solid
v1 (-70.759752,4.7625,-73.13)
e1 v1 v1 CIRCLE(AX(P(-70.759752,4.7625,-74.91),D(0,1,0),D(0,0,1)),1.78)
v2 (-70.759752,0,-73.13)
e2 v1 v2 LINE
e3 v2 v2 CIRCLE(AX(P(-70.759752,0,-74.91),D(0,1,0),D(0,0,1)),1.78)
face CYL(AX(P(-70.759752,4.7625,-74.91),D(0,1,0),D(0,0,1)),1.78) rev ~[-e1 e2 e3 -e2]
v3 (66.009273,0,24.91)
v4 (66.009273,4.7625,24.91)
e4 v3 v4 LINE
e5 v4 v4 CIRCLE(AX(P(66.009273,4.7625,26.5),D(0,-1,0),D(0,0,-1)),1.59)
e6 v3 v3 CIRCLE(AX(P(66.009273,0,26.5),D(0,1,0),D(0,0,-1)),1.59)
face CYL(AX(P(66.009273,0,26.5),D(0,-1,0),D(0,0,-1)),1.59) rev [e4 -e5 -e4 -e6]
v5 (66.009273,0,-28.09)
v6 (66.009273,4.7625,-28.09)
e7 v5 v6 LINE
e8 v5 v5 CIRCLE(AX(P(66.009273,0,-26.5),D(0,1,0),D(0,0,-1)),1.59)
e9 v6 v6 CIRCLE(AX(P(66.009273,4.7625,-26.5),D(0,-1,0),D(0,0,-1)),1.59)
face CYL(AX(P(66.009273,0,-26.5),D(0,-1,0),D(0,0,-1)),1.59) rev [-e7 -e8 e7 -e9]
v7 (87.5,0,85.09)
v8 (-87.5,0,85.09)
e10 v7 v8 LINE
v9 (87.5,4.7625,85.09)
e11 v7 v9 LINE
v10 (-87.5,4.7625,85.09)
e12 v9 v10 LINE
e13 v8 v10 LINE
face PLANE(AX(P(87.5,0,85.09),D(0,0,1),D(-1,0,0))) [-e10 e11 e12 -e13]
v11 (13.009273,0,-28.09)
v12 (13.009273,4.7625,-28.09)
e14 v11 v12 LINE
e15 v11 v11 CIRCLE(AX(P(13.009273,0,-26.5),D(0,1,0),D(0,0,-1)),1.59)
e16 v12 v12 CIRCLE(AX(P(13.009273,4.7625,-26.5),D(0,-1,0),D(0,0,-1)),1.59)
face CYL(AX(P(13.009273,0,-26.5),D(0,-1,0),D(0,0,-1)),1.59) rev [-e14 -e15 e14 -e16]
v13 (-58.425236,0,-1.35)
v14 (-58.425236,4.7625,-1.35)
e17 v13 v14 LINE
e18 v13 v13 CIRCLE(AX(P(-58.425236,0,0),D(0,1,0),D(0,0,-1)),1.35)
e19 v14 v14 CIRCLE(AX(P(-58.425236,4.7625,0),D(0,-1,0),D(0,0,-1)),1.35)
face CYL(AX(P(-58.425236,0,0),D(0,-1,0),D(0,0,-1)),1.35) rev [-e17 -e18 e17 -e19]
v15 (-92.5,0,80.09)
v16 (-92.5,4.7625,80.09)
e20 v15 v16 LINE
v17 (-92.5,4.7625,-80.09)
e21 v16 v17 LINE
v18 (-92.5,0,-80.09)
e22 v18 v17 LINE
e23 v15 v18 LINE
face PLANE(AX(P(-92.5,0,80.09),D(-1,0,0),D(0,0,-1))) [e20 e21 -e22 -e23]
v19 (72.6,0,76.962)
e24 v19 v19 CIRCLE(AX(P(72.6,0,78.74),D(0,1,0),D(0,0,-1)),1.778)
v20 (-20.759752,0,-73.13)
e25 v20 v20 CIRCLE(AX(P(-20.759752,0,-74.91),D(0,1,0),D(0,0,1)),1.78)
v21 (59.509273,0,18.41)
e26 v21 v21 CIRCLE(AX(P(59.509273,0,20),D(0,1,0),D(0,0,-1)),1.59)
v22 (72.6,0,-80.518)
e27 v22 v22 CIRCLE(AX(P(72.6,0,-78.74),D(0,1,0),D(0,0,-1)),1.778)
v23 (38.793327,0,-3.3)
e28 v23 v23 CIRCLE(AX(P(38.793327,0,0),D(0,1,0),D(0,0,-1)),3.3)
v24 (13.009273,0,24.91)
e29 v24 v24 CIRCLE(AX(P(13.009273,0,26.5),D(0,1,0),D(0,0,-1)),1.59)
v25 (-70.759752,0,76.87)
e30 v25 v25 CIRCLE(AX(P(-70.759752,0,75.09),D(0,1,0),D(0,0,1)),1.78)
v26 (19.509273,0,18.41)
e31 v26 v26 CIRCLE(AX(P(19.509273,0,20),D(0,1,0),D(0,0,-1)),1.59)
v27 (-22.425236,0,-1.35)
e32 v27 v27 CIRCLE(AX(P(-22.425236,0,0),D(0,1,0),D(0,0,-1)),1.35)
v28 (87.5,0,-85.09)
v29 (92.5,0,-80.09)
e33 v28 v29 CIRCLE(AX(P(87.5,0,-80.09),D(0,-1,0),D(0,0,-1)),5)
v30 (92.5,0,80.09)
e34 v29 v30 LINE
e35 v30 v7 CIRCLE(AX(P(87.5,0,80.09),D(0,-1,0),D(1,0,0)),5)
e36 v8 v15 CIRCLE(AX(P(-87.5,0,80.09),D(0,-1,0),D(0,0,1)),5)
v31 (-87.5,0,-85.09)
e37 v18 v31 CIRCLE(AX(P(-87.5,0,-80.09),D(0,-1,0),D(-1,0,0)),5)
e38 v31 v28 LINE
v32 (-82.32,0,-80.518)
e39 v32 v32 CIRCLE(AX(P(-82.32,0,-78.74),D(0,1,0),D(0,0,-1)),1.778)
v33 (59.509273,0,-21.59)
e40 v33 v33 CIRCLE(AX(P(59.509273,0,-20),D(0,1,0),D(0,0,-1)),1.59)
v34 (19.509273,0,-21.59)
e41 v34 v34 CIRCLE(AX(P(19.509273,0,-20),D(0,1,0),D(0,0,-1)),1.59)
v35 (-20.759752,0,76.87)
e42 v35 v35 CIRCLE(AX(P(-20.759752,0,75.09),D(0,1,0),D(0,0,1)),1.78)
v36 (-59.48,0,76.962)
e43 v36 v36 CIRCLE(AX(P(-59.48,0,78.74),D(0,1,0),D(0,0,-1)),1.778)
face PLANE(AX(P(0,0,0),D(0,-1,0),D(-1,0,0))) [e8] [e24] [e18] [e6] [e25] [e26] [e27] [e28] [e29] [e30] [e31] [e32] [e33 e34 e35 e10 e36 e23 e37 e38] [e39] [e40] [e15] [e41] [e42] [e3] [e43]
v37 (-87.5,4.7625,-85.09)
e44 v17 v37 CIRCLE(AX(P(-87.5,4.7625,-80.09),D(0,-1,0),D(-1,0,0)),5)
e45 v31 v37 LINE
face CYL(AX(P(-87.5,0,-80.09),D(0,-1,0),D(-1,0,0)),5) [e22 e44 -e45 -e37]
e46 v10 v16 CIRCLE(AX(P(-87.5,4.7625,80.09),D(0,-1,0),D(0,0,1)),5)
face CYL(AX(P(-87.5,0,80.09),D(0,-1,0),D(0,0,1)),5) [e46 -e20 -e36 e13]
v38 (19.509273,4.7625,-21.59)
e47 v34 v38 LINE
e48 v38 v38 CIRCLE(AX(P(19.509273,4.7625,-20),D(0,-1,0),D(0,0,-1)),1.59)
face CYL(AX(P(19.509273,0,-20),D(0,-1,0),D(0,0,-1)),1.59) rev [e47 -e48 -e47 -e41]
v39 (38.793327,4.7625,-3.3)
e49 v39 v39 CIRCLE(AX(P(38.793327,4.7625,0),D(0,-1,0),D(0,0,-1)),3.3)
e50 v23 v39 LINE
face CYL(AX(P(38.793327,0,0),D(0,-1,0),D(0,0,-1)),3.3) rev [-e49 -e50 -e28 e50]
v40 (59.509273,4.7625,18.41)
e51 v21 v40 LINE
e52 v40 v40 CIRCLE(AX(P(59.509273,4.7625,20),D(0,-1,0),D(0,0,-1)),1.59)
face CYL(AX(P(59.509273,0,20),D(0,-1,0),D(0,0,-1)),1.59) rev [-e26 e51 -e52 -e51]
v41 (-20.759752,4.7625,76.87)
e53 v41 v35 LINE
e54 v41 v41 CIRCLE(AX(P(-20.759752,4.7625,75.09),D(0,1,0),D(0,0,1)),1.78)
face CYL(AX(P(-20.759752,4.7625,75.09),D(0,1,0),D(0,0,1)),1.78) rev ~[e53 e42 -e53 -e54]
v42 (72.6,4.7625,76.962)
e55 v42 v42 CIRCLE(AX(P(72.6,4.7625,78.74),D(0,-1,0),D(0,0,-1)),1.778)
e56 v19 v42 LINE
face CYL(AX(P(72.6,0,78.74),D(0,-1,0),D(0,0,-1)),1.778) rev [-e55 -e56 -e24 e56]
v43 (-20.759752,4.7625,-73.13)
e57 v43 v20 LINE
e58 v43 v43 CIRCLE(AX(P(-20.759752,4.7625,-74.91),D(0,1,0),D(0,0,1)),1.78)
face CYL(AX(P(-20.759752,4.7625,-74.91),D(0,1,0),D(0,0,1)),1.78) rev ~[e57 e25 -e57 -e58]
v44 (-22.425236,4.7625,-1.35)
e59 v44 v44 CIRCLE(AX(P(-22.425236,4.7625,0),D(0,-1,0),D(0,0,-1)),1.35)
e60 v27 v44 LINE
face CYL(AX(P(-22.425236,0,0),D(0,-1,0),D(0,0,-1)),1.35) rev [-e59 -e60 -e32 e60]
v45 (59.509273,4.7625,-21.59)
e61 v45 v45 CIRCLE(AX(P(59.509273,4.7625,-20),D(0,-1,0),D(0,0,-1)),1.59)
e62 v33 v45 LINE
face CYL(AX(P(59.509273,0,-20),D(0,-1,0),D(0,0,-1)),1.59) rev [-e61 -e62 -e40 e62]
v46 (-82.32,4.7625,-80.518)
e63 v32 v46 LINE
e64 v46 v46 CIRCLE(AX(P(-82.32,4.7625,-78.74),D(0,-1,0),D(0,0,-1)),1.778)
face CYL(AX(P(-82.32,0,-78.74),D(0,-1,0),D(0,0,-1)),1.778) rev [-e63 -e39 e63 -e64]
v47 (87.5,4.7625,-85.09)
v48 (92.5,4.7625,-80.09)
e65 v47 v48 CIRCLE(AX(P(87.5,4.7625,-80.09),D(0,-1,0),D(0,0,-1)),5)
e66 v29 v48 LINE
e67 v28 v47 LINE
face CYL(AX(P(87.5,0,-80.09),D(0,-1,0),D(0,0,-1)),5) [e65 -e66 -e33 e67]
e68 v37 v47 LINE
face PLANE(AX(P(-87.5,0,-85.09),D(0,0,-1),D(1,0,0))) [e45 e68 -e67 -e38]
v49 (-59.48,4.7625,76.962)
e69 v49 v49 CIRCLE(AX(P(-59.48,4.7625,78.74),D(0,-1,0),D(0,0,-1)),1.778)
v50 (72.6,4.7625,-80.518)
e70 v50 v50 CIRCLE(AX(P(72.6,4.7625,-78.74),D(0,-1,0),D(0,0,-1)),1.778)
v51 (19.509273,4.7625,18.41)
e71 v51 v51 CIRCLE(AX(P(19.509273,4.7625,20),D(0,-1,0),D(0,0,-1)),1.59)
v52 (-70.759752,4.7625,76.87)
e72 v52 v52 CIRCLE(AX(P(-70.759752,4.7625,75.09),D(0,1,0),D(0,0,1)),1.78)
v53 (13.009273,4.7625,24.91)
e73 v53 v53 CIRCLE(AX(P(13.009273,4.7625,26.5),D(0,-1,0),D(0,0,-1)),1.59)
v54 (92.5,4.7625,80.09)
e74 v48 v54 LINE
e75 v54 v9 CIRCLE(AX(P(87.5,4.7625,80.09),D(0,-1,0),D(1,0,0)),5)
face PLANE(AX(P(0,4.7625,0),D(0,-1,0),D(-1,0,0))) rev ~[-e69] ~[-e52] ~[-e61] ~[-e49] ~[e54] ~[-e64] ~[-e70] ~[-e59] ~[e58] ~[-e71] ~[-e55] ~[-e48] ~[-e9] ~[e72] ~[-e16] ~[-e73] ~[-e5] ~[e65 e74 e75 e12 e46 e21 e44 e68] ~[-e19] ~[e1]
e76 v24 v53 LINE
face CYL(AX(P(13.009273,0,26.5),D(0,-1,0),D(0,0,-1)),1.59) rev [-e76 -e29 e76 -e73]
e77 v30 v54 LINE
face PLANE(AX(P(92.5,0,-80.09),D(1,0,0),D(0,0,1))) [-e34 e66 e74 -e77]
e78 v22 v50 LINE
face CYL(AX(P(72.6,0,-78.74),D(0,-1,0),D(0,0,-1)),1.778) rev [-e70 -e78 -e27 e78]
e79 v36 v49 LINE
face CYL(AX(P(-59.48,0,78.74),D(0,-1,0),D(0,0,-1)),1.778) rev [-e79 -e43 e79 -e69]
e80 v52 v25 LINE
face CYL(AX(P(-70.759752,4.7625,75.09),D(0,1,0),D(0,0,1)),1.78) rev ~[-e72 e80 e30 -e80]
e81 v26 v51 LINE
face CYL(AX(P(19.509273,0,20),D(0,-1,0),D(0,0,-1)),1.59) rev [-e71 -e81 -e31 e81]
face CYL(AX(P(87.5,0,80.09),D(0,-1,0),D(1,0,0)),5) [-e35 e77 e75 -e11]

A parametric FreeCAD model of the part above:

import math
import FreeCAD as App
import Part
import Sketcher
Q = App.Units.Quantity

doc = App.newDocument("Part")
body = doc.addObject("PartDesign::Body", "Body")

# Sketch on XZ plane
sketch1 = body.newObject("Sketcher::SketchObject", "Sketch")
sketch1.AttachmentSupport = (doc.getObject("XZ_Plane"), [""])
sketch1.MapMode = "FlatFace"
sketch1.addGeometry(Part.LineSegment(App.Vector(88, -85, 0), App.Vector(-88, -85, 0)), False)
sketch1.addGeometry(Part.ArcOfCircle(Part.Circle(App.Vector(-88, -80, 0), App.Vector(0, 0, 1), 5), math.radians(180), math.radians(270)), False)
sketch1.addGeometry(Part.LineSegment(App.Vector(-92, -80, 0), App.Vector(-92, 80, 0)), False)
sketch1.addGeometry(Part.ArcOfCircle(Part.Circle(App.Vector(-88, 80, 0), App.Vector(0, 0, 1), 5), math.radians(90), math.radians(180)), False)
sketch1.addGeometry(Part.LineSegment(App.Vector(-88, 85, 0), App.Vector(88, 85, 0)), False)
sketch1.addGeometry(Part.ArcOfCircle(Part.Circle(App.Vector(88, 80, 0), App.Vector(0, 0, 1), 5), math.radians(0), math.radians(90)), False)
sketch1.addGeometry(Part.LineSegment(App.Vector(92, 80, 0), App.Vector(92, -80, 0)), False)
sketch1.addGeometry(Part.ArcOfCircle(Part.Circle(App.Vector(88, -80, 0), App.Vector(0, 0, 1), 5), math.radians(-90), math.radians(0)), False)
sketch1.addConstraint(Sketcher.Constraint("Tangent", 0, 2, 1, 2))
sketch1.addConstraint(Sketcher.Constraint("Tangent", 1, 1, 2, 1))
sketch1.addConstraint(Sketcher.Constraint("Tangent", 2, 2, 3, 2))
sketch1.addConstraint(Sketcher.Constraint("Tangent", 3, 1, 4, 1))
sketch1.addConstraint(Sketcher.Constraint("Tangent", 4, 2, 5, 2))
sketch1.addConstraint(Sketcher.Constraint("Tangent", 5, 1, 6, 1))
sketch1.addConstraint(Sketcher.Constraint("Tangent", 6, 2, 7, 2))
sketch1.addConstraint(Sketcher.Constraint("Tangent", 7, 1, 0, 1))
sketch1.addConstraint(Sketcher.Constraint("Horizontal", 0))
sketch1.addConstraint(Sketcher.Constraint("Vertical", 2))
sketch1.addConstraint(Sketcher.Constraint("Horizontal", 4))
sketch1.addConstraint(Sketcher.Constraint("Vertical", 6))
sketch1.addConstraint(Sketcher.Constraint("Equal", 1, 3))
sketch1.addConstraint(Sketcher.Constraint("Equal", 3, 5))
sketch1.addConstraint(Sketcher.Constraint("Equal", 5, 7))
sketch1.addConstraint(Sketcher.Constraint("Symmetric", 1, 3, 5, 3, -1, 1))
sketch1.addConstraint(Sketcher.Constraint("Radius", 1, Q("5 mm")))
sketch1.addConstraint(Sketcher.Constraint("DistanceX", 0, 2, 0, 1, Q("175 mm")))
sketch1.addConstraint(Sketcher.Constraint("DistanceY", 2, 1, 2, 2, Q("160.18 mm")))
pad1 = body.newObject("PartDesign::Pad", "Pad")
pad1.Profile = sketch1
pad1.Length = 4.7625
pad1.Reversed = True

# Sketch on XZ plane
sketch2 = body.newObject("Sketcher::SketchObject", "Sketch001")
sketch2.AttachmentSupport = (doc.getObject("XZ_Plane"), [""])
sketch2.MapMode = "FlatFace"
sketch2.addGeometry(Part.Circle(App.Vector(-59.5, 78.7, 0), App.Vector(0, 0, 1), 1.8), False)
sketch2.addGeometry(Part.Circle(App.Vector(-82.3, -78.7, 0), App.Vector(0, 0, 1), 1.8), False)
sketch2.addGeometry(Part.Circle(App.Vector(72.6, -78.7, 0), App.Vector(0, 0, 1), 1.8), False)
sketch2.addGeometry(Part.Circle(App.Vector(72.6, 78.7, 0), App.Vector(0, 0, 1), 1.8), False)
sketch2.addConstraint(Sketcher.Constraint("Equal", 0, 1))
sketch2.addConstraint(Sketcher.Constraint("Equal", 1, 2))
sketch2.addConstraint(Sketcher.Constraint("Equal", 2, 3))
sketch2.addConstraint(Sketcher.Constraint("Symmetric", 2, 3, 3, 3, -1))
sketch2.addConstraint(Sketcher.Constraint("Horizontal", 1, 3, 2, 3))
sketch2.addConstraint(Sketcher.Constraint("Horizontal", 0, 3, 3, 3))
sketch2.addConstraint(Sketcher.Constraint("Diameter", 0, Q("3.556 mm")))
sketch2.addConstraint(Sketcher.Constraint("DistanceX", -1, 1, 2, 3, Q("72.6 mm")))
sketch2.addConstraint(Sketcher.Constraint("DistanceX", 0, 3, -1, 1, Q("59.48 mm")))
sketch2.addConstraint(Sketcher.Constraint("DistanceY", -1, 1, 0, 3, Q("78.74 mm")))
sketch2.addConstraint(Sketcher.Constraint("DistanceX", 1, 3, -1, 1, Q("82.32 mm")))
pocket1 = body.newObject("PartDesign::Pocket", "Pocket")
pocket1.Profile = sketch2
pocket1.Type = "ThroughAll"

# Sketch on XZ plane
sketch3 = body.newObject("Sketcher::SketchObject", "Sketch002")
sketch3.AttachmentSupport = (doc.getObject("XZ_Plane"), [""])
sketch3.MapMode = "FlatFace"
sketch3.addGeometry(Part.Circle(App.Vector(-22.4, 0, 0), App.Vector(0, 0, 1), 1.4), False)
sketch3.addGeometry(Part.Circle(App.Vector(-58.4, 0, 0), App.Vector(0, 0, 1), 1.4), False)
sketch3.addConstraint(Sketcher.Constraint("Equal", 0, 1))
sketch3.addConstraint(Sketcher.Constraint("PointOnObject", 0, 3, -1))
sketch3.addConstraint(Sketcher.Constraint("PointOnObject", 1, 3, -1))
sketch3.addConstraint(Sketcher.Constraint("Diameter", 0, Q("2.7 mm")))
sketch3.addConstraint(Sketcher.Constraint("DistanceX", 1, 3, 0, 3, Q("36 mm")))
sketch3.addConstraint(Sketcher.Constraint("DistanceX", 0, 3, -1, 1, Q("22.425236 mm")))
pocket2 = body.newObject("PartDesign::Pocket", "Pocket001")
pocket2.Profile = sketch3
pocket2.Type = "ThroughAll"

# Sketch on XZ plane
sketch4 = body.newObject("Sketcher::SketchObject", "Sketch003")
sketch4.AttachmentSupport = (doc.getObject("XZ_Plane"), [""])
sketch4.MapMode = "FlatFace"
sketch4.addGeometry(Part.Circle(App.Vector(59.5, -20, 0), App.Vector(0, 0, 1), 1.6), False)
sketch4.addGeometry(Part.Circle(App.Vector(59.5, 20, 0), App.Vector(0, 0, 1), 1.6), False)
sketch4.addGeometry(Part.Circle(App.Vector(19.5, 20, 0), App.Vector(0, 0, 1), 1.6), False)
sketch4.addGeometry(Part.Circle(App.Vector(19.5, -20, 0), App.Vector(0, 0, 1), 1.6), False)
sketch4.addConstraint(Sketcher.Constraint("Equal", 0, 1))
sketch4.addConstraint(Sketcher.Constraint("Equal", 1, 2))
sketch4.addConstraint(Sketcher.Constraint("Equal", 2, 3))
sketch4.addConstraint(Sketcher.Constraint("Symmetric", 0, 3, 1, 3, -1))
sketch4.addConstraint(Sketcher.Constraint("Symmetric", 2, 3, 3, 3, -1))
sketch4.addConstraint(Sketcher.Constraint("Horizontal", 1, 3, 2, 3))
sketch4.addConstraint(Sketcher.Constraint("Diameter", 0, Q("3.18 mm")))
sketch4.addConstraint(Sketcher.Constraint("DistanceY", 0, 3, -1, 1, Q("20 mm")))
sketch4.addConstraint(Sketcher.Constraint("DistanceX", 2, 3, 1, 3, Q("40 mm")))
sketch4.addConstraint(Sketcher.Constraint("DistanceX", -1, 1, 0, 3, Q("59.509273 mm")))
pocket3 = body.newObject("PartDesign::Pocket", "Pocket002")
pocket3.Profile = sketch4
pocket3.Type = "ThroughAll"

# Sketch on XZ plane
sketch5 = body.newObject("Sketcher::SketchObject", "Sketch004")
sketch5.AttachmentSupport = (doc.getObject("XZ_Plane"), [""])
sketch5.MapMode = "FlatFace"
sketch5.addGeometry(Part.Circle(App.Vector(13, -26.5, 0), App.Vector(0, 0, 1), 1.6), False)
sketch5.addGeometry(Part.Circle(App.Vector(13, 26.5, 0), App.Vector(0, 0, 1), 1.6), False)
sketch5.addGeometry(Part.Circle(App.Vector(66, 26.5, 0), App.Vector(0, 0, 1), 1.6), False)
sketch5.addGeometry(Part.Circle(App.Vector(66, -26.5, 0), App.Vector(0, 0, 1), 1.6), False)
sketch5.addConstraint(Sketcher.Constraint("Equal", 0, 1))
sketch5.addConstraint(Sketcher.Constraint("Equal", 1, 2))
sketch5.addConstraint(Sketcher.Constraint("Equal", 2, 3))
sketch5.addConstraint(Sketcher.Constraint("Symmetric", 0, 3, 1, 3, -1))
sketch5.addConstraint(Sketcher.Constraint("Symmetric", 2, 3, 3, 3, -1))
sketch5.addConstraint(Sketcher.Constraint("Horizontal", 1, 3, 2, 3))
sketch5.addConstraint(Sketcher.Constraint("Diameter", 0, Q("3.18 mm")))
sketch5.addConstraint(Sketcher.Constraint("DistanceY", 0, 3, 1, 3, Q("53 mm")))
sketch5.addConstraint(Sketcher.Constraint("DistanceX", 1, 3, 2, 3, Q("53 mm")))
sketch5.addConstraint(Sketcher.Constraint("DistanceX", -1, 1, 0, 3, Q("13.009273 mm")))
pocket4 = body.newObject("PartDesign::Pocket", "Pocket003")
pocket4.Profile = sketch5
pocket4.Type = "ThroughAll"

# Sketch on XZ plane
sketch6 = body.newObject("Sketcher::SketchObject", "Sketch005")
sketch6.AttachmentSupport = (doc.getObject("XZ_Plane"), [""])
sketch6.MapMode = "FlatFace"
sketch6.addGeometry(Part.Circle(App.Vector(38.8, 0, 0), App.Vector(0, 0, 1), 3.3), False)
sketch6.addConstraint(Sketcher.Constraint("PointOnObject", 0, 3, -1))
sketch6.addConstraint(Sketcher.Constraint("Diameter", 0, Q("6.6 mm")))
sketch6.addConstraint(Sketcher.Constraint("DistanceX", -1, 1, 0, 3, Q("38.793327 mm")))
pocket5 = body.newObject("PartDesign::Pocket", "Pocket004")
pocket5.Profile = sketch6
pocket5.Type = "ThroughAll"

# Sketch on XZ plane
sketch7 = body.newObject("Sketcher::SketchObject", "Sketch006")
sketch7.AttachmentSupport = (doc.getObject("XZ_Plane"), [""])
sketch7.MapMode = "FlatFace"
sketch7.AttachmentOffset = App.Placement(App.Vector(0, 0, -4.7625), App.Rotation())
sketch7.addGeometry(Part.Circle(App.Vector(-70.8, -74.9, 0), App.Vector(0, 0, 1), 1.8), False)
sketch7.addGeometry(Part.Circle(App.Vector(-20.8, -74.9, 0), App.Vector(0, 0, 1), 1.8), False)
sketch7.addGeometry(Part.Circle(App.Vector(-70.8, 75.1, 0), App.Vector(0, 0, 1), 1.8), False)
sketch7.addGeometry(Part.Circle(App.Vector(-20.8, 75.1, 0), App.Vector(0, 0, 1), 1.8), False)
sketch7.addConstraint(Sketcher.Constraint("Equal", 0, 1))
sketch7.addConstraint(Sketcher.Constraint("Equal", 1, 2))
sketch7.addConstraint(Sketcher.Constraint("Equal", 2, 3))
sketch7.addConstraint(Sketcher.Constraint("Horizontal", 0, 3, 1, 3))
sketch7.addConstraint(Sketcher.Constraint("Horizontal", 2, 3, 3, 3))
sketch7.addConstraint(Sketcher.Constraint("Vertical", 0, 3, 2, 3))
sketch7.addConstraint(Sketcher.Constraint("Vertical", 1, 3, 3, 3))
sketch7.addConstraint(Sketcher.Constraint("Diameter", 0, Q("3.56 mm")))
sketch7.addConstraint(Sketcher.Constraint("DistanceX", 0, 3, 1, 3, Q("50 mm")))
sketch7.addConstraint(Sketcher.Constraint("DistanceY", 0, 3, 2, 3, Q("150 mm")))
sketch7.addConstraint(Sketcher.Constraint("DistanceY", 0, 3, -1, 1, Q("74.91 mm")))
sketch7.addConstraint(Sketcher.Constraint("DistanceX", 0, 3, -1, 1, Q("70.759752 mm")))
pocket6 = body.newObject("PartDesign::Pocket", "Pocket005")
pocket6.Profile = sketch7
pocket6.Type = "ThroughAll"
pocket6.Reversed = True

doc.recompute()
